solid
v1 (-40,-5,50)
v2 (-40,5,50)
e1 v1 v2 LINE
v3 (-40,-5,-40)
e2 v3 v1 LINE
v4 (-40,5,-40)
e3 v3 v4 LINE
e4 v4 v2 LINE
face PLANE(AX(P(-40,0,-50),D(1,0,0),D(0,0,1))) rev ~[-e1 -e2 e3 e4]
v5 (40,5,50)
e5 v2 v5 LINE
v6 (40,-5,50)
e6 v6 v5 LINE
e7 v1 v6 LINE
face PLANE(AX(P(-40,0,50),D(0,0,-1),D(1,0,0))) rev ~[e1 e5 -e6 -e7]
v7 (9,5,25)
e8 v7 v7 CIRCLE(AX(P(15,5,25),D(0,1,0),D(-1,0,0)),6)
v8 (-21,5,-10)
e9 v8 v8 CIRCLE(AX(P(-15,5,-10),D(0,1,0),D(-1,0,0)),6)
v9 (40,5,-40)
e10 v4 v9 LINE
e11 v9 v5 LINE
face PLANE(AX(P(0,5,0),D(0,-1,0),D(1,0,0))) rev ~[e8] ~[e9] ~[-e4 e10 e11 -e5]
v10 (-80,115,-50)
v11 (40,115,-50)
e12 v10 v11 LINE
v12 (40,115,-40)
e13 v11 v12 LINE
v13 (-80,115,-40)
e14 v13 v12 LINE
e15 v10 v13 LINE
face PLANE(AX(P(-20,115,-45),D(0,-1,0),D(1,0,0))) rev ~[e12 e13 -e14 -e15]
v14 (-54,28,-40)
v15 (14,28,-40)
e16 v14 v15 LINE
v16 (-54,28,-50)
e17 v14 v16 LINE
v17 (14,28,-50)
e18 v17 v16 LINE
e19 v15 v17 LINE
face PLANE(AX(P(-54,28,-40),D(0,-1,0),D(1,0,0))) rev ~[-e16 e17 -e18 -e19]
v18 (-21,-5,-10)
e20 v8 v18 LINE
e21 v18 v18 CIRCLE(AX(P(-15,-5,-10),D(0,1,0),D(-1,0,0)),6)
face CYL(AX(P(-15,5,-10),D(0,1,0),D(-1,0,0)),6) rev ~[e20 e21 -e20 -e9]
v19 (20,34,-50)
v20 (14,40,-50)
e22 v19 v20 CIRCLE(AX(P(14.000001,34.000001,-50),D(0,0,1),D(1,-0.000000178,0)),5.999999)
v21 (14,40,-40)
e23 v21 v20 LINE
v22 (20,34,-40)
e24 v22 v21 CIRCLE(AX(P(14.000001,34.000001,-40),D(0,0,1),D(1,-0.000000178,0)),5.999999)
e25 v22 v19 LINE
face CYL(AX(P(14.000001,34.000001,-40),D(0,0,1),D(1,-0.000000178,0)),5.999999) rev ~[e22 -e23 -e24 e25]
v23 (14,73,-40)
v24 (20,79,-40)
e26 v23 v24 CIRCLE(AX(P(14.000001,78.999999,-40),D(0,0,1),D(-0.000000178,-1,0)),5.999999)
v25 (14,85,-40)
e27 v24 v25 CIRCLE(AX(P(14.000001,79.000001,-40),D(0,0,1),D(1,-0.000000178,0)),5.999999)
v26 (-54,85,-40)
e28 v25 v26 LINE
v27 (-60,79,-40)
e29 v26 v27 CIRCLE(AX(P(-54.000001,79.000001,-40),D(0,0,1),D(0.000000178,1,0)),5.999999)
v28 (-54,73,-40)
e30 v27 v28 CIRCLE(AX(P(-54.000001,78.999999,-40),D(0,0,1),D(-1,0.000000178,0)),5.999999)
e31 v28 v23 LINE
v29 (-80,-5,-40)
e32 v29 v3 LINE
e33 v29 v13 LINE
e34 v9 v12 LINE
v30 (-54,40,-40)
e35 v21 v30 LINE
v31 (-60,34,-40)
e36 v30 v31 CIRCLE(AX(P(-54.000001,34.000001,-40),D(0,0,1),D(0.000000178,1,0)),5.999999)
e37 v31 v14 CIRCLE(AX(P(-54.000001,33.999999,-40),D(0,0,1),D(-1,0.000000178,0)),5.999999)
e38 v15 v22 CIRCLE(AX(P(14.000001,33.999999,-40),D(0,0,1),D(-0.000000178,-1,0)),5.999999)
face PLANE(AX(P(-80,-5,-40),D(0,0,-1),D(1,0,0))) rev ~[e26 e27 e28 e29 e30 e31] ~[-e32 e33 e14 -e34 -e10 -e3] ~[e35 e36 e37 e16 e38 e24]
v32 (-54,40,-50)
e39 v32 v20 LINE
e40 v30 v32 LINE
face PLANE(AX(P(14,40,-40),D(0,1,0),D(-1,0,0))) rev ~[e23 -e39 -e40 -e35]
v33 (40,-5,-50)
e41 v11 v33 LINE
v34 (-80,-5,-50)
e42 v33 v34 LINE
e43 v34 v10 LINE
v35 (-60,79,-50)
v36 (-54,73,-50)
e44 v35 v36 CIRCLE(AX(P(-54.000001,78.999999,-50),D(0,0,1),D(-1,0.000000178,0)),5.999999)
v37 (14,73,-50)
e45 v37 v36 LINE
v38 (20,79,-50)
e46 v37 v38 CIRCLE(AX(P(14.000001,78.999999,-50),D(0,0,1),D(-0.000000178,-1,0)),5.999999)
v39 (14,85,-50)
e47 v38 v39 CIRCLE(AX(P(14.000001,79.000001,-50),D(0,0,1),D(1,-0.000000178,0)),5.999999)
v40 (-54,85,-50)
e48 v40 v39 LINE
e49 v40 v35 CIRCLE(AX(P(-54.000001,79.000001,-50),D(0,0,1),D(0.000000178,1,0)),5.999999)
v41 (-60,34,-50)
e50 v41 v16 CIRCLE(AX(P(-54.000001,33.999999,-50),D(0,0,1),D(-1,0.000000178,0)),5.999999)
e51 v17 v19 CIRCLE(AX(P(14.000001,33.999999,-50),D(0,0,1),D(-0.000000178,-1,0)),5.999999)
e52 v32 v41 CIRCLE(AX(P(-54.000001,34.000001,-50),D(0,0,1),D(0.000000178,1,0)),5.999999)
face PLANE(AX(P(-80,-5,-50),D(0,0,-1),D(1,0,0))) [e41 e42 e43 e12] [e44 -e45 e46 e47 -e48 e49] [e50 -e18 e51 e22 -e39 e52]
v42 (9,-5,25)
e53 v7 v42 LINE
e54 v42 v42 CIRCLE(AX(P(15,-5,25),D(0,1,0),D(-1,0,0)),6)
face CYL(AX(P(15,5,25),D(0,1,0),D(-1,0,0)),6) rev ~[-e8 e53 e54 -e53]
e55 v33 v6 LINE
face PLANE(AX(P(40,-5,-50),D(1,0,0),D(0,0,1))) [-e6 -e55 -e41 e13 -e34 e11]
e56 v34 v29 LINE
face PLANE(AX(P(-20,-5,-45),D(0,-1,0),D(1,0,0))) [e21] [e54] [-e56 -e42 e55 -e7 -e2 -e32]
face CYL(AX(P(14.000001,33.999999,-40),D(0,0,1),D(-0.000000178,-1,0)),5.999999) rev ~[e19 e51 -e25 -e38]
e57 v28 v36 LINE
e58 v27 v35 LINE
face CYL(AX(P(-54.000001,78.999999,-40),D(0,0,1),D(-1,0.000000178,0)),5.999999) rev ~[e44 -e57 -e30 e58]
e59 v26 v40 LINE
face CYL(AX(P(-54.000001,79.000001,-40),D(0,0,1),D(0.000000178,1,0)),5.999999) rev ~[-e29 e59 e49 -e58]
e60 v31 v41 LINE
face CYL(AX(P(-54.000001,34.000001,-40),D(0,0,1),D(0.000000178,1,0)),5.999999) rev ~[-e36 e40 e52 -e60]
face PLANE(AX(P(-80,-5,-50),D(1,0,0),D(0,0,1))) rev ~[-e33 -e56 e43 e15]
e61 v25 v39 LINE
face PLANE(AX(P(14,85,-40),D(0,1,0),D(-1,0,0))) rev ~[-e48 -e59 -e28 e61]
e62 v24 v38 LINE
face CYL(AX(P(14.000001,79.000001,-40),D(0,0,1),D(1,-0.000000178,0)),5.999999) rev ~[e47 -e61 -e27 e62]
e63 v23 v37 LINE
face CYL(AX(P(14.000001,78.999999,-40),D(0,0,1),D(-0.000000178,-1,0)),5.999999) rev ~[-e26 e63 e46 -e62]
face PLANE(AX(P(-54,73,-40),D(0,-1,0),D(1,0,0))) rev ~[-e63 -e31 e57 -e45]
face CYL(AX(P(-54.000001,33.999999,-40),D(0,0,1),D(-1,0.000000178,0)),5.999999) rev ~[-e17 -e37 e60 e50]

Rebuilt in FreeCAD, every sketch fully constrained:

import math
import FreeCAD as App
import Part
import Sketcher
from FreeCAD import Vector

doc = App.newDocument("Part")
body = doc.addObject("PartDesign::Body", "Body")

sketch1 = body.newObject("Sketcher::SketchObject", "Sketch")
sketch1.AttachmentSupport = (doc.getObject("XZ_Plane"), [""])
sketch1.MapMode = "FlatFace"
sketch1.addGeometry([
    Part.LineSegment(Vector(-40, 50, 0), Vector(-40, -50, 0)),
    Part.LineSegment(Vector(-40, -50, 0), Vector(40, -50, 0)),
    Part.LineSegment(Vector(40, -50, 0), Vector(40, 50, 0)),
    Part.LineSegment(Vector(40, 50, 0), Vector(-40, 50, 0)),
], False)
sketch1.addConstraint([
    Sketcher.Constraint("Coincident", 0, 2, 1, 1),
    Sketcher.Constraint("Coincident", 1, 2, 2, 1),
    Sketcher.Constraint("Coincident", 2, 2, 3, 1),
    Sketcher.Constraint("Coincident", 3, 2, 0, 1),
    Sketcher.Constraint("Vertical", 0),
    Sketcher.Constraint("Horizontal", 1),
    Sketcher.Constraint("Vertical", 2),
    Sketcher.Constraint("Horizontal", 3),
    Sketcher.Constraint("Symmetric", 0, 2, 2, 2, -1, 1),
    Sketcher.Constraint("DistanceX", 1, 1, 1, 2, 80.0),
    Sketcher.Constraint("DistanceY", 0, 2, 0, 1, 100.0),
])
pad1 = body.newObject("PartDesign::Pad", "Pad")
pad1.Profile = sketch1
pad1.Length = 10
pad1.Midplane = True

sketch2 = body.newObject("Sketcher::SketchObject", "Sketch001")
sketch2.AttachmentSupport = (doc.getObject("XZ_Plane"), [""])
sketch2.MapMode = "FlatFace"
sketch2.AttachmentOffset = App.Placement(Vector(0, 0, 5), App.Rotation())
sketch2.addGeometry([
    Part.LineSegment(Vector(-80, -40, 0), Vector(-80, -50, 0)),
    Part.LineSegment(Vector(-80, -50, 0), Vector(40, -50, 0)),
    Part.LineSegment(Vector(40, -50, 0), Vector(40, -40, 0)),
    Part.LineSegment(Vector(40, -40, 0), Vector(-80, -40, 0)),
], False)
sketch2.addConstraint([
    Sketcher.Constraint("Coincident", 0, 2, 1, 1),
    Sketcher.Constraint("Coincident", 1, 2, 2, 1),
    Sketcher.Constraint("Coincident", 2, 2, 3, 1),
    Sketcher.Constraint("Coincident", 3, 2, 0, 1),
    Sketcher.Constraint("Vertical", 0),
    Sketcher.Constraint("Horizontal", 1),
    Sketcher.Constraint("Vertical", 2),
    Sketcher.Constraint("Horizontal", 3),
    Sketcher.Constraint("DistanceX", 1, 1, 1, 2, 120.0),
    Sketcher.Constraint("DistanceY", 0, 2, 0, 1, 10.0),
    Sketcher.Constraint("DistanceX", 0, 2, -1, 1, 80.0),
    Sketcher.Constraint("DistanceY", 0, 2, -1, 1, 50.0),
])
pad2 = body.newObject("PartDesign::Pad", "Pad001")
pad2.Profile = sketch2
pad2.Length = 120
pad2.Reversed = True

sketch3 = body.newObject("Sketcher::SketchObject", "Sketch002")
sketch3.AttachmentSupport = (doc.getObject("XY_Plane"), [""])
sketch3.MapMode = "FlatFace"
sketch3.AttachmentOffset = App.Placement(Vector(0, 0, -40), App.Rotation())
sketch3.addGeometry([
    Part.ArcOfCircle(Part.Circle(Vector(14, 79, 0), Vector(0, 0, 1), 6), math.radians(0), math.radians(90)),
    Part.LineSegment(Vector(14, 85, 0), Vector(-54, 85, 0)),
    Part.ArcOfCircle(Part.Circle(Vector(-54, 79, 0), Vector(0, 0, 1), 6), math.radians(90), math.radians(180)),
    Part.ArcOfCircle(Part.Circle(Vector(-54, 79, 0), Vector(0, 0, 1), 6), math.radians(180), math.radians(270)),
    Part.LineSegment(Vector(-54, 73, 0), Vector(14, 73, 0)),
    Part.ArcOfCircle(Part.Circle(Vector(14, 79, 0), Vector(0, 0, 1), 6), math.radians(-90), math.radians(0)),
    Part.LineSegment(Vector(-54, 28, 0), Vector(14, 28, 0)),
    Part.ArcOfCircle(Part.Circle(Vector(14, 34, 0), Vector(0, 0, 1), 6), math.radians(-90), math.radians(0)),
    Part.ArcOfCircle(Part.Circle(Vector(14, 34, 0), Vector(0, 0, 1), 6), math.radians(0), math.radians(90)),
    Part.LineSegment(Vector(14, 40, 0), Vector(-54, 40, 0)),
    Part.ArcOfCircle(Part.Circle(Vector(-54, 34, 0), Vector(0, 0, 1), 6), math.radians(90), math.radians(180)),
    Part.ArcOfCircle(Part.Circle(Vector(-54, 34, 0), Vector(0, 0, 1), 6), math.radians(180), math.radians(270)),
], False)
sketch3.addConstraint([
    Sketcher.Constraint("Tangent", 0, 2, 1, 1),
    Sketcher.Constraint("Tangent", 1, 2, 2, 1),
    Sketcher.Constraint("Tangent", 2, 2, 3, 1),
    Sketcher.Constraint("Tangent", 3, 2, 4, 1),
    Sketcher.Constraint("Tangent", 4, 2, 5, 1),
    Sketcher.Constraint("Tangent", 5, 2, 0, 1),
    Sketcher.Constraint("Tangent", 6, 2, 7, 1),
    Sketcher.Constraint("Tangent", 7, 2, 8, 1),
    Sketcher.Constraint("Tangent", 8, 2, 9, 1),
    Sketcher.Constraint("Tangent", 9, 2, 10, 1),
    Sketcher.Constraint("Tangent", 10, 2, 11, 1),
    Sketcher.Constraint("Tangent", 11, 2, 6, 1),
    Sketcher.Constraint("Horizontal", 1),
    Sketcher.Constraint("Horizontal", 4),
    Sketcher.Constraint("Horizontal", 6),
    Sketcher.Constraint("Horizontal", 9),
    Sketcher.Constraint("Equal", 0, 2),
    Sketcher.Constraint("Equal", 2, 3),
    Sketcher.Constraint("Equal", 5, 7),
    Sketcher.Constraint("Equal", 7, 8),
    Sketcher.Constraint("Equal", 8, 10),
    Sketcher.Constraint("Horizontal", 5, 3, 2, 2),
    Sketcher.Constraint("Horizontal", 2, 2, 5, 2),
    Sketcher.Constraint("Horizontal", 11, 3, 7, 2),
    Sketcher.Constraint("Horizontal", 7, 2, 10, 2),
    Sketcher.Constraint("Vertical", 5, 3, 7, 3),
    Sketcher.Constraint("Vertical", 3, 3, 10, 3),
    Sketcher.Constraint("Radius", 0, 5.999999),
    Sketcher.Constraint("DistanceX", 1, 2, 1, 1, 68.0),
    Sketcher.Constraint("DistanceX", -1, 1, 0, 3, 14.000001),
    Sketcher.Constraint("DistanceY", -1, 1, 0, 3, 79.000001),
    Sketcher.Constraint("DistanceY", -1, 1, 7, 3, 33.999999),
])
pocket1 = body.newObject("PartDesign::Pocket", "Pocket")
pocket1.Profile = sketch3
pocket1.Length = 25

sketch4 = body.newObject("Sketcher::SketchObject", "Sketch003")
sketch4.AttachmentSupport = (doc.getObject("XZ_Plane"), [""])
sketch4.MapMode = "FlatFace"
sketch4.AttachmentOffset = App.Placement(Vector(0, 0, -5), App.Rotation())
sketch4.addGeometry([
    Part.Circle(Vector(15, 25, 0), Vector(0, 0, 1), 6),
    Part.Circle(Vector(-15, -10, 0), Vector(0, 0, 1), 6),
], False)
sketch4.addConstraint([
    Sketcher.Constraint("Equal", 0, 1),
    Sketcher.Constraint("Diameter", 0, 12.0),
    Sketcher.Constraint("DistanceX", -1, 1, 0, 3, 15.0),
    Sketcher.Constraint("DistanceY", -1, 1, 0, 3, 25.0),
    Sketcher.Constraint("DistanceX", 1, 3, -1, 1, 15.0),
    Sketcher.Constraint("DistanceY", 1, 3, -1, 1, 10.0),
])
pocket2 = body.newObject("PartDesign::Pocket", "Pocket001")
pocket2.Profile = sketch4
pocket2.Length = 25
pocket2.Reversed = True

doc.recompute()
